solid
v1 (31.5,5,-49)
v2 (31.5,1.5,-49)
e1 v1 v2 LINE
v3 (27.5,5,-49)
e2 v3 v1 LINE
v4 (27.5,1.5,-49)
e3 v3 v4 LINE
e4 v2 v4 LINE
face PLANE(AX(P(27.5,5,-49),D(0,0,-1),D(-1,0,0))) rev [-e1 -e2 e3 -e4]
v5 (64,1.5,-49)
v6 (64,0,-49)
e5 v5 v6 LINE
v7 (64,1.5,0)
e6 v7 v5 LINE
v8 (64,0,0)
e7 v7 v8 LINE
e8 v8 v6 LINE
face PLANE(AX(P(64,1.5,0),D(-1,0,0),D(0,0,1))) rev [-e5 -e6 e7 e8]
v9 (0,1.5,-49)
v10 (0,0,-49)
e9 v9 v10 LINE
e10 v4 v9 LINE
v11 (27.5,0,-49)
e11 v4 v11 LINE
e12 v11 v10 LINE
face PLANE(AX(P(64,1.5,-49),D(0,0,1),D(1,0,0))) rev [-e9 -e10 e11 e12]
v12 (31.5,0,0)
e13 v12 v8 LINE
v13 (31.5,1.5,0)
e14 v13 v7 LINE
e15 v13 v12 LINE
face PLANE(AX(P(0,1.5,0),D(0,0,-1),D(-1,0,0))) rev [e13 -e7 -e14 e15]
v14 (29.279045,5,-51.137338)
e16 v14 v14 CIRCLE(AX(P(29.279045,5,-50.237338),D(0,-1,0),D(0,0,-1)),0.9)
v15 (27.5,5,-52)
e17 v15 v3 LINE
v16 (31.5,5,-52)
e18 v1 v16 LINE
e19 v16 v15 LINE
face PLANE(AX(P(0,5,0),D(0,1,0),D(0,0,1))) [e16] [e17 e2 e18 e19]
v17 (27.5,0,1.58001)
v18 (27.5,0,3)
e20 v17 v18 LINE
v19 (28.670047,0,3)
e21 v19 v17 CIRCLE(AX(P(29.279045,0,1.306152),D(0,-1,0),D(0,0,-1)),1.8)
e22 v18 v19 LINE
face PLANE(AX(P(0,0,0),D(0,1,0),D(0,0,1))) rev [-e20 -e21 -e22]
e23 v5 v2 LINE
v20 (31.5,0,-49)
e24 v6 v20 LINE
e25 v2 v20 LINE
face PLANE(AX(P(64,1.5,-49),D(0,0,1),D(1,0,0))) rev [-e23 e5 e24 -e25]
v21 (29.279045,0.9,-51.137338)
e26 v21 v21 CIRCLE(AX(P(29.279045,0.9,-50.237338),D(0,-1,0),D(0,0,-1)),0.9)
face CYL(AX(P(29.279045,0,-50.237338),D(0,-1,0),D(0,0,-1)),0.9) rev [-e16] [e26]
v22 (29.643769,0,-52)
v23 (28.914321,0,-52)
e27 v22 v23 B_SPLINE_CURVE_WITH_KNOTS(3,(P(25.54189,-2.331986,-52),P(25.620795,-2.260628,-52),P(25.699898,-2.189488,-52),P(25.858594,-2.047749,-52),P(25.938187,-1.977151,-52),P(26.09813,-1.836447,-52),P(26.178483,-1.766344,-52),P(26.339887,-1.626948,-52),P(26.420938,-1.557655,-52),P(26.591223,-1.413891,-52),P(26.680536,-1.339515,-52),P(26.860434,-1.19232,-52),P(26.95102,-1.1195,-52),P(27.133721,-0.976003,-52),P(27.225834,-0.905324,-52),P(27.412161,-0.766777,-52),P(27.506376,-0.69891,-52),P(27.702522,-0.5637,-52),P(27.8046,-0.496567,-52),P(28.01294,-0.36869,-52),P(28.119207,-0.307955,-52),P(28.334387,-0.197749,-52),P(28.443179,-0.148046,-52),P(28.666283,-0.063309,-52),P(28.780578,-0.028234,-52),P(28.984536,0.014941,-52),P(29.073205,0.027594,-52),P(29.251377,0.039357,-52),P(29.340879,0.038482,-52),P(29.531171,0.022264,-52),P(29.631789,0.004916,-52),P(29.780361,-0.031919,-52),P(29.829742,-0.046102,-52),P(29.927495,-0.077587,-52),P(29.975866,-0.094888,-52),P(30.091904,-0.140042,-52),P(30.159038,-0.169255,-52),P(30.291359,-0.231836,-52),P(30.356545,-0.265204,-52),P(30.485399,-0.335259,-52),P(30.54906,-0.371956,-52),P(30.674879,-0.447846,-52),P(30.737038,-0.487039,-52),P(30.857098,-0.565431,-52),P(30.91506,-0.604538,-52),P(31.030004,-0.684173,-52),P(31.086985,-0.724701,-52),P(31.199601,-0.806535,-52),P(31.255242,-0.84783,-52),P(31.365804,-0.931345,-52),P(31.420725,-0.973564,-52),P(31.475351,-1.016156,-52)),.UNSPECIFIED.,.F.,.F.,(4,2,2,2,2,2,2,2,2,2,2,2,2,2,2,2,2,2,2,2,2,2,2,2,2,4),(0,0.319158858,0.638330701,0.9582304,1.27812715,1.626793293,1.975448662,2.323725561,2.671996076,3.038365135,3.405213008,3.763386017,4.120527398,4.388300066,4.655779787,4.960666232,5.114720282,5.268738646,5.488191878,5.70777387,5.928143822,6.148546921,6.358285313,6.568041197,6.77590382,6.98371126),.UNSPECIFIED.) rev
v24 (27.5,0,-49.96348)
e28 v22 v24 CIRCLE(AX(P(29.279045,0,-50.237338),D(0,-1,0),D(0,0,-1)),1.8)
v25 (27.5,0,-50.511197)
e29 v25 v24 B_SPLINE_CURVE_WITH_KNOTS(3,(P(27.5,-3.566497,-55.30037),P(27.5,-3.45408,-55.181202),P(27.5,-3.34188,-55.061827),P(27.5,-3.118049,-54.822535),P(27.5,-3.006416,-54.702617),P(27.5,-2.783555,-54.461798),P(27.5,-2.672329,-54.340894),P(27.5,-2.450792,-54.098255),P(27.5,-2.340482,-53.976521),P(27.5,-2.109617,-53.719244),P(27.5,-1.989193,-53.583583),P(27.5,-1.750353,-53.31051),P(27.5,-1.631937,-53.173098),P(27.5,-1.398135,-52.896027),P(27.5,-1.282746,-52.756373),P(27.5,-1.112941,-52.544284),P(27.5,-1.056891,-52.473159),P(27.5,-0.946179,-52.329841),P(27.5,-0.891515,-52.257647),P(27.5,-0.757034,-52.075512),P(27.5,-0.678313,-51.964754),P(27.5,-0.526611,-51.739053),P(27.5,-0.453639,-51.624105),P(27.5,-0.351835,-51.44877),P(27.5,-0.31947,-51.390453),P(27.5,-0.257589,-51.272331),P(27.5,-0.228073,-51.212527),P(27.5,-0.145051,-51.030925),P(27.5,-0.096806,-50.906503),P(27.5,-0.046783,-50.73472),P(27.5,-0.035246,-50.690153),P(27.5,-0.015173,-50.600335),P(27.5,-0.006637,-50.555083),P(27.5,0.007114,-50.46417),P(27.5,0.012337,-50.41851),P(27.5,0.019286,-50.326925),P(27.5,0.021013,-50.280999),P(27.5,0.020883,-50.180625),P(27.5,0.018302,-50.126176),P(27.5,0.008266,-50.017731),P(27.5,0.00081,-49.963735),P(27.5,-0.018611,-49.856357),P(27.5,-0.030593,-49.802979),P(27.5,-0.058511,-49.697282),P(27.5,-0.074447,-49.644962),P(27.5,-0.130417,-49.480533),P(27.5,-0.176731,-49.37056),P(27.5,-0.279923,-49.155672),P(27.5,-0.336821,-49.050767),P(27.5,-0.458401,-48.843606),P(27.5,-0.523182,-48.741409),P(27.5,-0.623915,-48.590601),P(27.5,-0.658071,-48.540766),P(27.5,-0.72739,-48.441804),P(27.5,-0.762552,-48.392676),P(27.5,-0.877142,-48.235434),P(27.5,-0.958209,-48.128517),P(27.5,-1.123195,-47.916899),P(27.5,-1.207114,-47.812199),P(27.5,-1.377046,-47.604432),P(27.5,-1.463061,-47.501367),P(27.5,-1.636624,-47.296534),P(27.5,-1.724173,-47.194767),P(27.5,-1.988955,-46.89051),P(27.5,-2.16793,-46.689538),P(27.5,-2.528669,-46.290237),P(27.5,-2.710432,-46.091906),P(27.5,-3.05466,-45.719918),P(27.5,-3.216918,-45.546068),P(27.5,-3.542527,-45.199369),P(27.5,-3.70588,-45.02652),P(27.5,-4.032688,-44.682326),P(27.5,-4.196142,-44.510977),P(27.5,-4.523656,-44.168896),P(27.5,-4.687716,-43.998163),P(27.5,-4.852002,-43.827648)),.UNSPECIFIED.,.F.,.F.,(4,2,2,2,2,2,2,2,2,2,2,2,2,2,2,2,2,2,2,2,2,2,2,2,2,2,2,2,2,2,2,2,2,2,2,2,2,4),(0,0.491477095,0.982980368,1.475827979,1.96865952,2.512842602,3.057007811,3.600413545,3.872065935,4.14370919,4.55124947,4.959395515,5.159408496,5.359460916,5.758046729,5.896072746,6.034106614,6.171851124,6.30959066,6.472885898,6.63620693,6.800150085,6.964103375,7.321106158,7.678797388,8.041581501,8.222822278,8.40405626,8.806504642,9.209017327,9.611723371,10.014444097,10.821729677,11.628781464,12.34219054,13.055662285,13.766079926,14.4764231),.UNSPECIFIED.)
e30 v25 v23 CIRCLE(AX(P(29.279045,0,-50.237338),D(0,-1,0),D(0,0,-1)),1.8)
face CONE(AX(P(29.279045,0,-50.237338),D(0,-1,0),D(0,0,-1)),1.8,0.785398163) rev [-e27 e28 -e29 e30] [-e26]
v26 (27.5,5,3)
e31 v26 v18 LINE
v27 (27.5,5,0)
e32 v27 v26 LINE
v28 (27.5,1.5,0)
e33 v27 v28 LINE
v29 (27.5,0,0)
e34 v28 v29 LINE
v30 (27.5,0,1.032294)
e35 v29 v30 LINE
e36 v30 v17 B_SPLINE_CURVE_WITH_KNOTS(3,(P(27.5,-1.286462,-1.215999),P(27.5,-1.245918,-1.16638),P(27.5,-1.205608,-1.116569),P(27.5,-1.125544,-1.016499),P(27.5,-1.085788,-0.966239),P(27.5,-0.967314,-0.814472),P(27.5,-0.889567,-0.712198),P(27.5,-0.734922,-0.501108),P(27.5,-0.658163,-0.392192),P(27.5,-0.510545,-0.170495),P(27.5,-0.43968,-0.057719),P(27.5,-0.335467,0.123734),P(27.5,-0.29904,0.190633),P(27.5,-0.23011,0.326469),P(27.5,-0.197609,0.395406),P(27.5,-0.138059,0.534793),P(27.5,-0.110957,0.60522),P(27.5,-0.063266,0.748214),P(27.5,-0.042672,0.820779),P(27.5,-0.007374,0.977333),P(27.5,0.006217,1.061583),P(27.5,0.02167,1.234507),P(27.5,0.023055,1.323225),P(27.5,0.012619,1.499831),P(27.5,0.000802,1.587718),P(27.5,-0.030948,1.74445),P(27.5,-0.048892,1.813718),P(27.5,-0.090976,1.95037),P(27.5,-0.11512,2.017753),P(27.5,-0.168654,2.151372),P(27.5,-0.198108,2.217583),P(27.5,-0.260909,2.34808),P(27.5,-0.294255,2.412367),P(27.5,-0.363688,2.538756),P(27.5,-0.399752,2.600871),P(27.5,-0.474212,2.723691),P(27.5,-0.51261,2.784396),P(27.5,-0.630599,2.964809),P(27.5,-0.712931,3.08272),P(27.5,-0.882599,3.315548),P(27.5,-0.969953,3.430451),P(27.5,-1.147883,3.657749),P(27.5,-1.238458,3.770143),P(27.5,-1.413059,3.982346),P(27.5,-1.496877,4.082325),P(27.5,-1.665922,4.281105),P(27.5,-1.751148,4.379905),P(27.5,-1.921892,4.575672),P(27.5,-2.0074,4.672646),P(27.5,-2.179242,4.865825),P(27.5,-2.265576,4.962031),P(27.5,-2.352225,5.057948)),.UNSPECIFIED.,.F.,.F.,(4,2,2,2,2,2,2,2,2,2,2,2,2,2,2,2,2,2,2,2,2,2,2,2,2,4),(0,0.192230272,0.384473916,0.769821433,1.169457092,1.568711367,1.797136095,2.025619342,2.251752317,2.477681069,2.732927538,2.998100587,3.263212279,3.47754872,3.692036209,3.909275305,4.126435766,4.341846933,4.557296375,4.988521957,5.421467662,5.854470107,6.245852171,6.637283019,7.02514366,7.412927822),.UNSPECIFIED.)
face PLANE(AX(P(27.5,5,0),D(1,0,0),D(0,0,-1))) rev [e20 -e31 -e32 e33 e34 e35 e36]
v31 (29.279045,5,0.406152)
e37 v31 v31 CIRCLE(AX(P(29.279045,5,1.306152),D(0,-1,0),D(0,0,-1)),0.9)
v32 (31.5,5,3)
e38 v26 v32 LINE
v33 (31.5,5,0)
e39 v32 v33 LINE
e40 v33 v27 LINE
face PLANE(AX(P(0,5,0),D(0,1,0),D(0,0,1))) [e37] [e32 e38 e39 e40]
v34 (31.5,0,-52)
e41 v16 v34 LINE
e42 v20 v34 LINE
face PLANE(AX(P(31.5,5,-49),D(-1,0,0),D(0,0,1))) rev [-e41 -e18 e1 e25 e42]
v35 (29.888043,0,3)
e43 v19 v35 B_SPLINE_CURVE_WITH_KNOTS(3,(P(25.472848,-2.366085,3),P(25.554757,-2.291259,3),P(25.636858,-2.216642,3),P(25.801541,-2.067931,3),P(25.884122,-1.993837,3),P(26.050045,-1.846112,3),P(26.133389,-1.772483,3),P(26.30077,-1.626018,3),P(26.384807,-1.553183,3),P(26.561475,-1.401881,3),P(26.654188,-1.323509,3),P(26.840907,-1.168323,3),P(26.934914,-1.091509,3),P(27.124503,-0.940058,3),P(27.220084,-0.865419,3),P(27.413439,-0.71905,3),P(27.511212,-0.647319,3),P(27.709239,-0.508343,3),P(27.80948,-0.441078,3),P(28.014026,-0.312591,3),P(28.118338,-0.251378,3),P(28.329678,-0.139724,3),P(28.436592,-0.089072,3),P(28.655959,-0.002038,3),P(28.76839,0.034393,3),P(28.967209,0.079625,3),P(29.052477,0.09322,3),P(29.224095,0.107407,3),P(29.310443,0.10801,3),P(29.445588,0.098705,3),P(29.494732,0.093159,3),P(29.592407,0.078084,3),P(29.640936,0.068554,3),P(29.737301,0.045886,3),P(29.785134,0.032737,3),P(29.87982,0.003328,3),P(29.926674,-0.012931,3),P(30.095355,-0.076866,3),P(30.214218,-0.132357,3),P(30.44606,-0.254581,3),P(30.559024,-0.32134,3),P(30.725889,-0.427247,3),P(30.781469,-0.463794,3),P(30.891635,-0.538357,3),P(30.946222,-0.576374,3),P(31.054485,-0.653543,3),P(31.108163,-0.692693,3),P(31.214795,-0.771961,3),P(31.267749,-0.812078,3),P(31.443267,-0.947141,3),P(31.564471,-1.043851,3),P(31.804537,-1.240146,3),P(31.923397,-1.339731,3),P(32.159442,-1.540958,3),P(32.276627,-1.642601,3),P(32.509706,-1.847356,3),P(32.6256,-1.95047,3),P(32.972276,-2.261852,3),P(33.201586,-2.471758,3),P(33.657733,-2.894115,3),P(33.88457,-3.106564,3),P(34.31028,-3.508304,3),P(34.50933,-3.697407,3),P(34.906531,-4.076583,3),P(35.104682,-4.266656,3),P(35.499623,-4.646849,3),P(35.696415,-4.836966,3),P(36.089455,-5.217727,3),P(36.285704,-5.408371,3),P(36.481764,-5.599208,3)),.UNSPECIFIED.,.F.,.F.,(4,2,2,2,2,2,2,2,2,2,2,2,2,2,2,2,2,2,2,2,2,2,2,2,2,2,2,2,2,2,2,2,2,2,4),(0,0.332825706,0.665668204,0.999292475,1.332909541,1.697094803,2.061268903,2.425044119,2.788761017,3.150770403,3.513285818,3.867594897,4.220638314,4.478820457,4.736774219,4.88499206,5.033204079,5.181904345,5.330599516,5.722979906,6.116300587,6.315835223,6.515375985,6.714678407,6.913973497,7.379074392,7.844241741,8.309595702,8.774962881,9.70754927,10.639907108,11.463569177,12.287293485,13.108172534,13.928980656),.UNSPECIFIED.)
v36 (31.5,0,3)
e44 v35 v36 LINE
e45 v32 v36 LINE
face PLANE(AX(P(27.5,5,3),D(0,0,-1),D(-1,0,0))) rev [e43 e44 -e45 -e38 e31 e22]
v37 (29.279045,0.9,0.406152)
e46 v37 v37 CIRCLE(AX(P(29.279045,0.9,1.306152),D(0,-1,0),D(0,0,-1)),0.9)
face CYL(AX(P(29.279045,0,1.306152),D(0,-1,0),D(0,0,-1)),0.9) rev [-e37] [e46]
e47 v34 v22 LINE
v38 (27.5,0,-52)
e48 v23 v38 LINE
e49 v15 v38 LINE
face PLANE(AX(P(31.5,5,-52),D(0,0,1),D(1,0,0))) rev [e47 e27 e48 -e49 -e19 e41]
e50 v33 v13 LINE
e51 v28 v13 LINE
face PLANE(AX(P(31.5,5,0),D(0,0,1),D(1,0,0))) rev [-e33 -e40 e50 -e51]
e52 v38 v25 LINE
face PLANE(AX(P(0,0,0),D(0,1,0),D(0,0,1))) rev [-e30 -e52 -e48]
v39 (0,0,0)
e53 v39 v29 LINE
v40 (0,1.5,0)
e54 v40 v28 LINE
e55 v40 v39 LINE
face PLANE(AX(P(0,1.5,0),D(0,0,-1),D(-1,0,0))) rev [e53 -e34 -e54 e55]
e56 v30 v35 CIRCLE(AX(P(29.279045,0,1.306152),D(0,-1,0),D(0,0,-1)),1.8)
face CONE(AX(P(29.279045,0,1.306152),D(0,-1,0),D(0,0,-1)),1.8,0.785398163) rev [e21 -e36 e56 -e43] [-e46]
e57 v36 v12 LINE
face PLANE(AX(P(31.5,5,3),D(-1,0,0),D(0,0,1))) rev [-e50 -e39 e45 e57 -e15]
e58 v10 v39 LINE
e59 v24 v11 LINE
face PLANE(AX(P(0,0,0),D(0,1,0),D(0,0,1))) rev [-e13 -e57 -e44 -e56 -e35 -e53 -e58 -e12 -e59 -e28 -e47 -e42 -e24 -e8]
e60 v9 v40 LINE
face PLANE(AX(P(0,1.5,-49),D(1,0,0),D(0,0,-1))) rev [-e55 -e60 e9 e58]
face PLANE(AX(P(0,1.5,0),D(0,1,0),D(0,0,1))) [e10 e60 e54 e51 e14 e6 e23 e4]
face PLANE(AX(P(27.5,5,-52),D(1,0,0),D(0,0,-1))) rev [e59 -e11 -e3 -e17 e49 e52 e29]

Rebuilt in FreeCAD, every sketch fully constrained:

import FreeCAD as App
import Part
import Sketcher
Q = App.Units.Quantity


def add_polygon(sketch, points):
    """Adds a closed chain of lines whose ends are joined by coincident constraints."""
    first, n = sketch.GeometryCount, len(points)
    for a, b in zip(points, points[1:] + points[:1]):
        sketch.addGeometry(Part.LineSegment(App.Vector(*a, 0), App.Vector(*b, 0)), False)
    for i in range(n):
        sketch.addConstraint(Sketcher.Constraint("Coincident", first + i, 2, first + (i + 1) % n, 1))

doc = App.newDocument("Part")
params = doc.addObject("Spreadsheet::Sheet", "Params")
for row, (alias, value) in enumerate([
    ("sketch1_width", "64 mm"),
    ("sketch1_height", "49 mm"),
    ("pad1_length", "1.5 mm"),
    ("sketch2_width", "4 mm"),
    ("sketch2_height", "3 mm"),
    ("pad2_length", "5 mm"),
    ("sketch3_diameter", "1.8 mm"),
    ("hole_diameter", "1.8 mm"),
    ("hole_csink_diameter", "3.6 mm"),
], start=1):
    params.set(f"A{row}", alias)
    params.set(f"B{row}", "=" + value)
    params.setAlias(f"B{row}", alias)

body = doc.addObject("PartDesign::Body", "Body")

# Sketch on XZ plane
sketch1 = body.newObject("Sketcher::SketchObject", "Sketch")
sketch1.AttachmentSupport = (doc.getObject("XZ_Plane"), [""])
sketch1.MapMode = "FlatFace"
add_polygon(sketch1, [(0, -49), (0, 0), (64, 0), (64, -49)])  # lines 0-3
sketch1.addConstraint([
    Sketcher.Constraint("Vertical", 0),
    Sketcher.Constraint("Horizontal", 1),
    Sketcher.Constraint("Vertical", 2),
    Sketcher.Constraint("Horizontal", 3),
    Sketcher.Constraint("Coincident", 0, 2, -1, 1),
    Sketcher.Constraint("DistanceX", 1, 1, 1, 2, Q("64 mm")),
    Sketcher.Constraint("DistanceY", 0, 1, 0, 2, Q("49 mm")),
])
sketch1.setExpression("Constraints[9]", "Params.sketch1_width")
sketch1.setExpression("Constraints[10]", "Params.sketch1_height")
pad1 = body.newObject("PartDesign::Pad", "Pad")
pad1.Profile = sketch1
pad1.setExpression("Length", "Params.pad1_length")
pad1.Reversed = True

# Sketch on XZ plane
sketch2 = body.newObject("Sketcher::SketchObject", "Sketch001")
sketch2.AttachmentSupport = (doc.getObject("XZ_Plane"), [""])
sketch2.MapMode = "FlatFace"
add_polygon(sketch2, [(27.5, 0), (27.5, 3), (31.5, 3), (31.5, 0)])  # lines 0-3
add_polygon(sketch2, [(27.5, -52), (27.5, -49), (31.5, -49), (31.5, -52)])  # lines 4-7
sketch2.addConstraint([
    Sketcher.Constraint("Vertical", 0),
    Sketcher.Constraint("Horizontal", 1),
    Sketcher.Constraint("Vertical", 2),
    Sketcher.Constraint("Horizontal", 3),
    Sketcher.Constraint("Vertical", 4),
    Sketcher.Constraint("Horizontal", 5),
    Sketcher.Constraint("Vertical", 6),
    Sketcher.Constraint("Horizontal", 7),
    Sketcher.Constraint("PointOnObject", 2, 2, -1),
    Sketcher.Constraint("Vertical", 3, 2, 4, 2),
    Sketcher.Constraint("Vertical", 2, 2, 5, 2),
    Sketcher.Constraint("Equal", 2, 4),
    Sketcher.Constraint("DistanceX", 1, 1, 1, 2, Q("4 mm")),
    Sketcher.Constraint("DistanceY", 0, 1, 0, 2, Q("3 mm")),
    Sketcher.Constraint("DistanceY", 4, 2, -1, 1, Q("49 mm")),
    Sketcher.Constraint("DistanceX", -1, 1, 0, 2, Q("27.5 mm")),
])
sketch2.setExpression("Constraints[20]", "Params.sketch2_width")
sketch2.setExpression("Constraints[21]", "Params.sketch2_height")
pad2 = body.newObject("PartDesign::Pad", "Pad001")
pad2.Profile = sketch2
pad2.setExpression("Length", "Params.pad2_length")
pad2.Reversed = True

# Sketch on XZ plane
sketch3 = body.newObject("Sketcher::SketchObject", "Sketch002")
sketch3.AttachmentSupport = (doc.getObject("XZ_Plane"), [""])
sketch3.MapMode = "FlatFace"
sketch3.addGeometry([
    Part.Circle(App.Vector(29.3, -50.2, 0), App.Vector(0, 0, 1), 0.9),
    Part.Circle(App.Vector(29.3, 1.3, 0), App.Vector(0, 0, 1), 0.9),
], False)
sketch3.addConstraint([
    Sketcher.Constraint("Equal", 0, 1),
    Sketcher.Constraint("Vertical", 0, 3, 1, 3),
    Sketcher.Constraint("Diameter", 0, Q("1.8 mm")),
    Sketcher.Constraint("DistanceY", 0, 3, -1, 1, Q("50.237338 mm")),
    Sketcher.Constraint("DistanceY", -1, 1, 1, 3, Q("1.306152 mm")),
    Sketcher.Constraint("DistanceX", -1, 1, 0, 3, Q("29.279045 mm")),
])
sketch3.setExpression("Constraints[2]", "Params.sketch3_diameter")
doc.recompute()
hole = body.newObject("PartDesign::Hole", "Hole")
hole.Profile = sketch3
hole.ThreadType = "None"
hole.setExpression("Diameter", "Params.hole_diameter")
hole.DepthType = "ThroughAll"
hole.HoleCutType = "Countersink"
hole.setExpression("HoleCutDiameter", "Params.hole_csink_diameter")
hole.HoleCutCountersinkAngle = 90

doc.recompute()
